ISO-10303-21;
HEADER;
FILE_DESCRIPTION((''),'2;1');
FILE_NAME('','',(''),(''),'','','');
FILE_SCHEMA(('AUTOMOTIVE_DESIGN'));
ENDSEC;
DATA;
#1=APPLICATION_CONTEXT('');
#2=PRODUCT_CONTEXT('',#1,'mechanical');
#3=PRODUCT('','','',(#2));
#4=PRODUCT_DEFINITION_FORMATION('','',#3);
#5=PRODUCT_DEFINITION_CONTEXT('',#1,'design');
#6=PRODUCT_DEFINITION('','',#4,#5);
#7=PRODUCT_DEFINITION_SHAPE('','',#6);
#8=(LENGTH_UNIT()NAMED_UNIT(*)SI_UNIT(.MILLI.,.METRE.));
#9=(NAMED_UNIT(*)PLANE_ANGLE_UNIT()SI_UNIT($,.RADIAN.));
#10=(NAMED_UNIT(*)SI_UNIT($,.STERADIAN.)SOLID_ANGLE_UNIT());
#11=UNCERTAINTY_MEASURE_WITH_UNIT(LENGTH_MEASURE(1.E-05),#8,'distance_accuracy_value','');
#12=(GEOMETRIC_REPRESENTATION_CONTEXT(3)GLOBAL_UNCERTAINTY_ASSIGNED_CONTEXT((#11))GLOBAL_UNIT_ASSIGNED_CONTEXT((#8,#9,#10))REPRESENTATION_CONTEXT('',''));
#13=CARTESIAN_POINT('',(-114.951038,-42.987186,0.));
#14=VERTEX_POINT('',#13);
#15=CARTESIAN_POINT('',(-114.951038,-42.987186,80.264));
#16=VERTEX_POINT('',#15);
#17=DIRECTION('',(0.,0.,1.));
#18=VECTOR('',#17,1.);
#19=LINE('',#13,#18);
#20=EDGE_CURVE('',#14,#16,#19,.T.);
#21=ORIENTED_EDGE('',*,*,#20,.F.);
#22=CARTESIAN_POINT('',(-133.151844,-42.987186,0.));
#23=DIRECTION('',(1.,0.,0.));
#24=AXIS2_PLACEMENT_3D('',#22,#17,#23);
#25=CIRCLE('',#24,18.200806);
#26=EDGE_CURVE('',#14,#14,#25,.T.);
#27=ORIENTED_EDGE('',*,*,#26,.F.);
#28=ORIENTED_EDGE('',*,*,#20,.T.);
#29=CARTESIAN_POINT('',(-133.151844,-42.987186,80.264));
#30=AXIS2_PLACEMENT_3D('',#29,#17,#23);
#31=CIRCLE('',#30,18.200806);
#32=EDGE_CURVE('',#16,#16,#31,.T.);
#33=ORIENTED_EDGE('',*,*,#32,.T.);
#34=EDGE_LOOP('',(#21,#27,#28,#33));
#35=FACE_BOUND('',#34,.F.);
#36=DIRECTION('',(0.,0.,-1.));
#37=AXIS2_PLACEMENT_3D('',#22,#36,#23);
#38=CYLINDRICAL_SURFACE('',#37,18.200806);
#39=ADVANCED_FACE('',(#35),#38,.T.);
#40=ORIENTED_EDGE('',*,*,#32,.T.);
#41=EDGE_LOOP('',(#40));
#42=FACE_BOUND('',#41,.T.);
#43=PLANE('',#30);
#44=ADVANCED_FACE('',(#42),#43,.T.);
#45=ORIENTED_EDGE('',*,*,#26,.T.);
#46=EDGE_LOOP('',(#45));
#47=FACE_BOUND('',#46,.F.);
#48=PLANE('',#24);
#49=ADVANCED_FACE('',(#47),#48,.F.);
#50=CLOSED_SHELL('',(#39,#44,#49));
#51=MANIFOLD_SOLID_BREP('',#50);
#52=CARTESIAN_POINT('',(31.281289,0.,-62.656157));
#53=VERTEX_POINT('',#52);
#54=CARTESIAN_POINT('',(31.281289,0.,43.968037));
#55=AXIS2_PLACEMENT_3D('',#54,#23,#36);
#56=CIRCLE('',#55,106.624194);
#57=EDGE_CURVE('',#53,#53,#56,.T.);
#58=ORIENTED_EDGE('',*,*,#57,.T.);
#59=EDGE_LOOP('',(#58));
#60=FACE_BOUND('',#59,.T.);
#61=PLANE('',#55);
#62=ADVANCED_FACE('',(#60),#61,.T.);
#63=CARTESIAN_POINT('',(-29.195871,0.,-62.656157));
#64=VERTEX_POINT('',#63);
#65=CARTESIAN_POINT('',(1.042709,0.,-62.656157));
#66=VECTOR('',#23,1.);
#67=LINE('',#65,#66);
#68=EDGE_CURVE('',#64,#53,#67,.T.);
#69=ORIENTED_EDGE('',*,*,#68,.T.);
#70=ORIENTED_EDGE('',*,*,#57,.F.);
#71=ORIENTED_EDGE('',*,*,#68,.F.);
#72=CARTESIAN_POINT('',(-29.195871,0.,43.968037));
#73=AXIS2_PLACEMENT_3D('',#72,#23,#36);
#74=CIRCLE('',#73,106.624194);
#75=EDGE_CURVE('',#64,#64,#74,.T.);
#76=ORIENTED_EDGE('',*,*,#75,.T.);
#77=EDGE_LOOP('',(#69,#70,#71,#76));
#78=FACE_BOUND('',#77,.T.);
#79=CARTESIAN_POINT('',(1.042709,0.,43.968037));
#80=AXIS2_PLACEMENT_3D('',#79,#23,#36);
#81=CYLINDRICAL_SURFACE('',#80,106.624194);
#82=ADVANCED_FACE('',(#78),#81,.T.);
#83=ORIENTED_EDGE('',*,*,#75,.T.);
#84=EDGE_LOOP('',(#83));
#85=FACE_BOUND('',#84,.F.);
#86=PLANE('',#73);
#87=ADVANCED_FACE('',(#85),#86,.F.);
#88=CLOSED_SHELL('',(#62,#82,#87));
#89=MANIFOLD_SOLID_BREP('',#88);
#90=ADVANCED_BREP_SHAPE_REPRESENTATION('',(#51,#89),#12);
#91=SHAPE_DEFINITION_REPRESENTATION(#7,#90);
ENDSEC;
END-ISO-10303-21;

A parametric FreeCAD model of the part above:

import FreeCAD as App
import Part
import Sketcher
Q = App.Units.Quantity


def add_polygon(sketch, points):
    """Adds a closed chain of lines whose ends are joined by coincident constraints."""
    first, n = sketch.GeometryCount, len(points)
    for a, b in zip(points, points[1:] + points[:1]):
        sketch.addGeometry(Part.LineSegment(App.Vector(*a, 0), App.Vector(*b, 0)), False)
    for i in range(n):
        sketch.addConstraint(Sketcher.Constraint("Coincident", first + i, 2, first + (i + 1) % n, 1))

doc = App.newDocument("Part")
body = doc.addObject("PartDesign::Body", "Body")

# Sketch on XY plane
sketch1 = body.newObject("Sketcher::SketchObject", "Sketch")
sketch1.AttachmentSupport = (doc.getObject("XY_Plane"), [""])
sketch1.MapMode = "FlatFace"
sketch1.addGeometry(Part.Circle(App.Vector(-133.151844, -42.987186, 0), App.Vector(0, 0, 1), 18.200806), False)
sketch1.addConstraint([
    Sketcher.Constraint("Diameter", 0, Q("36.401612 mm")),
    Sketcher.Constraint("DistanceX", 0, 3, -1, 1, Q("133.151844 mm")),
    Sketcher.Constraint("DistanceY", 0, 3, -1, 1, Q("42.987186 mm")),
])
pad1 = body.newObject("PartDesign::Pad", "Pad")
pad1.Profile = sketch1
pad1.Length = Q("3.16 in")
body2 = doc.addObject("PartDesign::Body", "Body001")

# Sketch on XZ plane
sketch2 = body2.newObject("Sketcher::SketchObject", "Sketch001")
sketch2.AttachmentSupport = (doc.getObject("XZ_Plane001"), [""])
sketch2.MapMode = "FlatFace"
add_polygon(sketch2, [(-29.195871, 43.968037), (-29.195871, -62.656157), (31.281289, -62.656157), (31.281289, 43.968037)])  # lines 0-3
sketch2.addGeometry(Part.LineSegment(App.Vector(-29.195871, 43.968037, 0), App.Vector(31.281289, 43.968037, 0)), True)  # axis
sketch2.addConstraint([
    Sketcher.Constraint("Vertical", 0),
    Sketcher.Constraint("Horizontal", 1),
    Sketcher.Constraint("Vertical", 2),
    Sketcher.Constraint("Horizontal", 3),
    Sketcher.Constraint("Horizontal", 4),
    Sketcher.Constraint("Coincident", 4, 1, 3, 2),
    Sketcher.Constraint("Vertical", 1, 2, 4, 2),
    Sketcher.Constraint("DistanceX", 1, 1, 1, 2, Q("60.47716 mm")),
    Sketcher.Constraint("DistanceY", 0, 2, 0, 1, Q("106.624194 mm")),
    Sketcher.Constraint("DistanceX", 0, 2, -1, 1, Q("29.195871 mm")),
    Sketcher.Constraint("DistanceY", 0, 2, -1, 1, Q("62.656157 mm")),
])
revolution = body2.newObject("PartDesign::Revolution", "Revolution")
revolution.Profile = sketch2
revolution.ReferenceAxis = (sketch2, ["Axis0"])
revolution.Angle = 360

doc.recompute()
